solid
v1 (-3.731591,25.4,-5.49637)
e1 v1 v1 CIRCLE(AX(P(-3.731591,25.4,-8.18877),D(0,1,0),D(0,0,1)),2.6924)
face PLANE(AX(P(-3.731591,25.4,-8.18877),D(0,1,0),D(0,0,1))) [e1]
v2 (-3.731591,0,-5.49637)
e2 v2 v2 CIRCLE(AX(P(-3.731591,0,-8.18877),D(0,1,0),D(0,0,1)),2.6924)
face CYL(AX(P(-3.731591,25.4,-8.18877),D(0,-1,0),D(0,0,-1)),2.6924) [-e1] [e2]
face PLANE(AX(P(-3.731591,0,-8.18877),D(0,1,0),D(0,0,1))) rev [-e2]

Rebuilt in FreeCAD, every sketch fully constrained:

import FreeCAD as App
import Part
import Sketcher
from FreeCAD import Vector
Q = App.Units.Quantity

doc = App.newDocument("Part")
body = doc.addObject("PartDesign::Body", "Body")

sketch1 = body.newObject("Sketcher::SketchObject", "Sketch")
sketch1.AttachmentSupport = (doc.getObject("XZ_Plane"), [""])
sketch1.MapMode = "FlatFace"
sketch1.addGeometry(Part.Circle(Vector(-3.7, -8.2, 0), Vector(0, 0, 1), 2.7), False)
sketch1.addConstraint([
    Sketcher.Constraint("Diameter", 0, Q("0.212 in")),
    Sketcher.Constraint("DistanceX", 0, 3, -1, 1, 3.731591),
    Sketcher.Constraint("DistanceY", 0, 3, -1, 1, 8.18877),
])
pad1 = body.newObject("PartDesign::Pad", "Pad")
pad1.Profile = sketch1
pad1.Length = Q("1 in")
pad1.Reversed = True

doc.recompute()
